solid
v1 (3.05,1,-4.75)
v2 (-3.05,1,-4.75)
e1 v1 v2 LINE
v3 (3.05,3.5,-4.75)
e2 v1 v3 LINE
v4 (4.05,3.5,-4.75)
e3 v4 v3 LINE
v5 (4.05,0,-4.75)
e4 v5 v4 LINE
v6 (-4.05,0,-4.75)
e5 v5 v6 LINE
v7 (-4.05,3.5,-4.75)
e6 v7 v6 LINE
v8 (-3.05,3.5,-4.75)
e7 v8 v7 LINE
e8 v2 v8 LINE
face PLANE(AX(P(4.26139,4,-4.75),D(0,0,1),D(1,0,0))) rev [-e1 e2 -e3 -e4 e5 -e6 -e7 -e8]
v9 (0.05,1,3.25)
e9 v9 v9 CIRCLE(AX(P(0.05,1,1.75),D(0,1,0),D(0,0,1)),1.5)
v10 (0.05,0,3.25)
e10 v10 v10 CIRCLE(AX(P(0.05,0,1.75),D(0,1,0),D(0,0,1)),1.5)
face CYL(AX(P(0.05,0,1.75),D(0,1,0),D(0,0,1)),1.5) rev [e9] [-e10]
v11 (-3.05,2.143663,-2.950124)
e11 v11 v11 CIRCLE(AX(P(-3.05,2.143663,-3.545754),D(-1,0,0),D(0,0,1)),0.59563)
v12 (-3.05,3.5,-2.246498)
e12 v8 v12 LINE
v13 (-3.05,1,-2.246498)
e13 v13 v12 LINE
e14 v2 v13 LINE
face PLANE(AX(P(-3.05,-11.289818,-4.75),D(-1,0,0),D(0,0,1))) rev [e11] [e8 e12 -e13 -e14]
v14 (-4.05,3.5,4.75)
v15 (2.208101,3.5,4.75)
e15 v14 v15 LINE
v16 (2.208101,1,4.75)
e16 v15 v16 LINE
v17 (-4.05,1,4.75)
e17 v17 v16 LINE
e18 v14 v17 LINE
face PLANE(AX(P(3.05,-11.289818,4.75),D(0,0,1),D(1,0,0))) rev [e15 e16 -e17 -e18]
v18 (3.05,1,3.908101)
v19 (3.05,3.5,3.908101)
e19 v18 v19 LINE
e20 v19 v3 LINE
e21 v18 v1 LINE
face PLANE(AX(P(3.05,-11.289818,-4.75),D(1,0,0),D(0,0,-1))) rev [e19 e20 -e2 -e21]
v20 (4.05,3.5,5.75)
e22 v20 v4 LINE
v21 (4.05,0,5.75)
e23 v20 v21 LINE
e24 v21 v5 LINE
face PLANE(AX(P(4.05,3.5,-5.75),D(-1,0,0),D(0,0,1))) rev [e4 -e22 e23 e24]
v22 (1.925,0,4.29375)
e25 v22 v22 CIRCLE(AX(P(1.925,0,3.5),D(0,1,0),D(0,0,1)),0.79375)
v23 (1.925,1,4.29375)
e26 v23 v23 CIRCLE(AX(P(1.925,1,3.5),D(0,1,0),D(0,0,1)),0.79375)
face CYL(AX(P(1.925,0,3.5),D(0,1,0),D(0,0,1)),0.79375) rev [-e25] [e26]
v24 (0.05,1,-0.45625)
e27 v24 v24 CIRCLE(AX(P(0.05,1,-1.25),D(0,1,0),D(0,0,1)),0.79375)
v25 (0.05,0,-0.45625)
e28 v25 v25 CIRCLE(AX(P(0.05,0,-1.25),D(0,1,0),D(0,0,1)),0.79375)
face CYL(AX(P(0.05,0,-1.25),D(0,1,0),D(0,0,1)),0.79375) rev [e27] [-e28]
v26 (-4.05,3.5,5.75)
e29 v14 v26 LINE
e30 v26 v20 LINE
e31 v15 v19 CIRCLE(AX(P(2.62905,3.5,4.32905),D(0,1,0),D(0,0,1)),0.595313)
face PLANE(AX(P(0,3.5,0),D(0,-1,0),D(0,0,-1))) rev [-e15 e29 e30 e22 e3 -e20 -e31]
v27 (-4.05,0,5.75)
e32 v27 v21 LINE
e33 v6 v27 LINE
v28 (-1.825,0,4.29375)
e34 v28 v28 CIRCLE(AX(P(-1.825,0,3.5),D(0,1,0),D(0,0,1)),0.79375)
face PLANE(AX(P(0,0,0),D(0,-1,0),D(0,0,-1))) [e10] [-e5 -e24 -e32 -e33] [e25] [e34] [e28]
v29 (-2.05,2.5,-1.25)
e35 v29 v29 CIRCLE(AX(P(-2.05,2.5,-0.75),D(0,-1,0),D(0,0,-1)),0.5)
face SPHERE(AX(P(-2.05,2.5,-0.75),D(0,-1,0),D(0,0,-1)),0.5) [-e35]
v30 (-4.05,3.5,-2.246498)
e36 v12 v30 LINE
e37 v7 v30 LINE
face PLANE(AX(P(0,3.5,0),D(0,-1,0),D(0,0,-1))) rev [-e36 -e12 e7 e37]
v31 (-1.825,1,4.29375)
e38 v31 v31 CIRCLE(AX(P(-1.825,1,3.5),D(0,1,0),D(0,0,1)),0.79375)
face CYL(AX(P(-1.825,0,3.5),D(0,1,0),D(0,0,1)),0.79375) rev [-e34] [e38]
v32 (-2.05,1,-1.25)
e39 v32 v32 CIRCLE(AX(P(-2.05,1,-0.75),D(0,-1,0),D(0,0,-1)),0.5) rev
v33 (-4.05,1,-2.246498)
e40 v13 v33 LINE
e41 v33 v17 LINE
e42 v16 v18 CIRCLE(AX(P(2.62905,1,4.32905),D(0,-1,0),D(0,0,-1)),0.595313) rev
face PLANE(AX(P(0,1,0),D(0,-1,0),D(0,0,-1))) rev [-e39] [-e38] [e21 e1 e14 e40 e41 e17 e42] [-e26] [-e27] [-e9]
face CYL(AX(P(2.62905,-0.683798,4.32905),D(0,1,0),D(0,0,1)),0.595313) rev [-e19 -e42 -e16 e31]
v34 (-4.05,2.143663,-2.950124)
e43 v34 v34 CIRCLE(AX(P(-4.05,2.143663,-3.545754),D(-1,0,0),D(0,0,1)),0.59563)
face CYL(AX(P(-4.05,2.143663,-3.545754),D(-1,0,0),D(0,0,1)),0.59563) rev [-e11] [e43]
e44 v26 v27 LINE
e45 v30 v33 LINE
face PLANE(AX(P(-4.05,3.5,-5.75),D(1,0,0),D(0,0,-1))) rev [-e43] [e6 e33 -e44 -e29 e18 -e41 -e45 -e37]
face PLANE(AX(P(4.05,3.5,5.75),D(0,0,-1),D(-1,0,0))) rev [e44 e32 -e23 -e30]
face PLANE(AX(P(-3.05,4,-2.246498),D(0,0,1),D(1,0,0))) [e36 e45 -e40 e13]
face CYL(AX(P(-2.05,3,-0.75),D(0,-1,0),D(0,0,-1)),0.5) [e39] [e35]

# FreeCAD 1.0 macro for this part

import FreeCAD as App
import Part
import Sketcher

V = App.Vector


def edges_at(feature, points):
    """Names of the edges that pass closest to the given points."""
    edges = feature.Shape.Edges
    near = lambda p: min(range(len(edges)), key=lambda i: edges[i].distToShape(Part.Vertex(*p))[0])
    return sorted({f"Edge{near(p) + 1}" for p in points})

doc = App.newDocument("Part")
params = doc.addObject("Spreadsheet::Sheet", "Params")
for row, (alias, value) in enumerate([
    ("sketch1_width", "8.1 mm"),
    ("sketch1_height", "11.5 mm"),
    ("pad1_length", "3.5 mm"),
    ("sketch2_width", "6.1 mm"),
    ("sketch2_height", "9.5 mm"),
    ("pocket1_length", "2.5 mm"),
    ("sketch3_diameter", "3 mm"),
    ("pocket3_length", "2.5 mm"),
    ("sketch6_height", "1 mm"),
    ("pocket5_length", "4 mm"),
    ("sketch7_width", "1 mm"),
    ("pocket6_length", "3 mm"),
    ("sketch8_diameter", "1 mm"),
    ("pad2_length", "2 mm"),
    ("fillet_radius", "0.5 mm"),
    ("hole_diameter", "1.19126 mm"),
    ("hole_depth", "1 mm"),
], start=1):
    params.set(f"A{row}", alias)
    params.set(f"B{row}", "=" + value)
    params.setAlias(f"B{row}", alias)

body = doc.addObject("PartDesign::Body", "Body")

sketch1 = doc.addObject("Sketcher::SketchObject", "Sketch")
body.addObject(sketch1)
sketch1.AttachmentSupport = (doc.XZ_Plane, [""])
sketch1.MapMode = "FlatFace"
sketch1.addGeometry(Part.LineSegment(V(-4, -6, 0), V(-4, 6, 0)), False)
sketch1.addGeometry(Part.LineSegment(V(-4, 6, 0), V(4, 6, 0)), False)
sketch1.addGeometry(Part.LineSegment(V(4, 6, 0), V(4, -6, 0)), False)
sketch1.addGeometry(Part.LineSegment(V(4, -6, 0), V(-4, -6, 0)), False)
sketch1.addConstraint(Sketcher.Constraint("Coincident", 0, 2, 1, 1))
sketch1.addConstraint(Sketcher.Constraint("Coincident", 1, 2, 2, 1))
sketch1.addConstraint(Sketcher.Constraint("Coincident", 2, 2, 3, 1))
sketch1.addConstraint(Sketcher.Constraint("Coincident", 3, 2, 0, 1))
sketch1.addConstraint(Sketcher.Constraint("Vertical", 0))
sketch1.addConstraint(Sketcher.Constraint("Horizontal", 1))
sketch1.addConstraint(Sketcher.Constraint("Vertical", 2))
sketch1.addConstraint(Sketcher.Constraint("Horizontal", 3))
sketch1.addConstraint(Sketcher.Constraint("Symmetric", 0, 2, 2, 2, -1, 1))
sketch1.addConstraint(Sketcher.Constraint("DistanceX", 1, 1, 1, 2, 8.1))
sketch1.addConstraint(Sketcher.Constraint("DistanceY", 0, 1, 0, 2, 11.5))
sketch1.setExpression("Constraints[9]", "Params.sketch1_width")
sketch1.setExpression("Constraints[10]", "Params.sketch1_height")
pad1 = doc.addObject("PartDesign::Pad", "Pad")
body.addObject(pad1)
pad1.Profile = sketch1
pad1.setExpression("Length", "Params.pad1_length")
pad1.Reversed = True

sketch2 = doc.addObject("Sketcher::SketchObject", "Sketch001")
body.addObject(sketch2)
sketch2.AttachmentSupport = (doc.XZ_Plane, [""])
sketch2.MapMode = "FlatFace"
sketch2.AttachmentOffset = App.Placement(V(0, 0, -3.5), App.Rotation())
sketch2.addGeometry(Part.LineSegment(V(-3, -5, 0), V(-3, 5, 0)), False)
sketch2.addGeometry(Part.LineSegment(V(-3, 5, 0), V(3, 5, 0)), False)
sketch2.addGeometry(Part.LineSegment(V(3, 5, 0), V(3, -5, 0)), False)
sketch2.addGeometry(Part.LineSegment(V(3, -5, 0), V(-3, -5, 0)), False)
sketch2.addConstraint(Sketcher.Constraint("Coincident", 0, 2, 1, 1))
sketch2.addConstraint(Sketcher.Constraint("Coincident", 1, 2, 2, 1))
sketch2.addConstraint(Sketcher.Constraint("Coincident", 2, 2, 3, 1))
sketch2.addConstraint(Sketcher.Constraint("Coincident", 3, 2, 0, 1))
sketch2.addConstraint(Sketcher.Constraint("Vertical", 0))
sketch2.addConstraint(Sketcher.Constraint("Horizontal", 1))
sketch2.addConstraint(Sketcher.Constraint("Vertical", 2))
sketch2.addConstraint(Sketcher.Constraint("Horizontal", 3))
sketch2.addConstraint(Sketcher.Constraint("Symmetric", 0, 2, 2, 2, -1, 1))
sketch2.addConstraint(Sketcher.Constraint("DistanceX", 1, 1, 1, 2, 6.1))
sketch2.addConstraint(Sketcher.Constraint("DistanceY", 0, 1, 0, 2, 9.5))
sketch2.setExpression("Constraints[9]", "Params.sketch2_width")
sketch2.setExpression("Constraints[10]", "Params.sketch2_height")
pocket1 = doc.addObject("PartDesign::Pocket", "Pocket")
body.addObject(pocket1)
pocket1.Profile = sketch2
pocket1.setExpression("Length", "Params.pocket1_length")
pocket1.Reversed = True

sketch3 = doc.addObject("Sketcher::SketchObject", "Sketch002")
body.addObject(sketch3)
sketch3.AttachmentSupport = (doc.XZ_Plane, [""])
sketch3.MapMode = "FlatFace"
sketch3.AttachmentOffset = App.Placement(V(0, 0, -1), App.Rotation())
sketch3.addGeometry(Part.Circle(V(0.1, 1.8, 0), V(0, 0, 1), 1.5), False)
sketch3.addConstraint(Sketcher.Constraint("Diameter", 0, 3.0))
sketch3.addConstraint(Sketcher.Constraint("DistanceX", -1, 1, 0, 3, 0.05))
sketch3.addConstraint(Sketcher.Constraint("DistanceY", -1, 1, 0, 3, 1.75))
sketch3.setExpression("Constraints[0]", "Params.sketch3_diameter")
pocket2 = doc.addObject("PartDesign::Pocket", "Pocket001")
body.addObject(pocket2)
pocket2.Profile = sketch3
pocket2.Type = "ThroughAll"
pocket2.Reversed = True

sketch4 = doc.addObject("Sketcher::SketchObject", "Sketch003")
body.addObject(sketch4)
sketch4.AttachmentSupport = (doc.XZ_Plane, [""])
sketch4.MapMode = "FlatFace"
sketch4.AttachmentOffset = App.Placement(V(0, 0, -3.5), App.Rotation())
sketch4.addGeometry(Part.Circle(V(2.6, 4.3, 0), V(0, 0, 1), 0.6), False)
sketch4.addConstraint(Sketcher.Constraint("Diameter", 0, 1.190625))
sketch4.addConstraint(Sketcher.Constraint("DistanceX", -1, 1, 0, 3, 2.62905))
sketch4.addConstraint(Sketcher.Constraint("DistanceY", -1, 1, 0, 3, 4.32905))
pocket3 = doc.addObject("PartDesign::Pocket", "Pocket002")
body.addObject(pocket3)
pocket3.Profile = sketch4
pocket3.setExpression("Length", "Params.pocket3_length")
pocket3.Reversed = True

sketch5 = doc.addObject("Sketcher::SketchObject", "Sketch004")
body.addObject(sketch5)
sketch5.AttachmentSupport = (doc.XZ_Plane, [""])
sketch5.MapMode = "FlatFace"
sketch5.AttachmentOffset = App.Placement(V(0, 0, -1), App.Rotation())
sketch5.addGeometry(Part.Circle(V(0.1, -1.2, 0), V(0, 0, 1), 0.8), False)
sketch5.addGeometry(Part.Circle(V(-1.8, 3.5, 0), V(0, 0, 1), 0.8), False)
sketch5.addGeometry(Part.Circle(V(1.9, 3.5, 0), V(0, 0, 1), 0.8), False)
sketch5.addConstraint(Sketcher.Constraint("Equal", 0, 1))
sketch5.addConstraint(Sketcher.Constraint("Equal", 1, 2))
sketch5.addConstraint(Sketcher.Constraint("Horizontal", 1, 3, 2, 3))
sketch5.addConstraint(Sketcher.Constraint("Diameter", 0, 1.5875))
sketch5.addConstraint(Sketcher.Constraint("DistanceY", -1, 1, 1, 3, 3.5))
sketch5.addConstraint(Sketcher.Constraint("DistanceX", -1, 1, 0, 3, 0.05))
sketch5.addConstraint(Sketcher.Constraint("DistanceY", 0, 3, -1, 1, 1.25))
sketch5.addConstraint(Sketcher.Constraint("DistanceX", 1, 3, 2, 3, 3.75))
sketch5.addConstraint(Sketcher.Constraint("DistanceX", 1, 3, -1, 1, 1.825))
pocket4 = doc.addObject("PartDesign::Pocket", "Pocket003")
body.addObject(pocket4)
pocket4.Profile = sketch5
pocket4.Type = "ThroughAll"
pocket4.Reversed = True

sketch6 = doc.addObject("Sketcher::SketchObject", "Sketch005")
body.addObject(sketch6)
sketch6.AttachmentSupport = (doc.XZ_Plane, [""])
sketch6.MapMode = "FlatFace"
sketch6.addGeometry(Part.LineSegment(V(-4.7, -4.8, 0), V(-4.7, -5.8, 0)), False)
sketch6.addGeometry(Part.LineSegment(V(-4.7, -5.8, 0), V(4.3, -5.8, 0)), False)
sketch6.addGeometry(Part.LineSegment(V(4.3, -5.8, 0), V(4.3, -4.8, 0)), False)
sketch6.addGeometry(Part.LineSegment(V(4.3, -4.8, 0), V(-4.7, -4.8, 0)), False)
sketch6.addConstraint(Sketcher.Constraint("Coincident", 0, 2, 1, 1))
sketch6.addConstraint(Sketcher.Constraint("Coincident", 1, 2, 2, 1))
sketch6.addConstraint(Sketcher.Constraint("Coincident", 2, 2, 3, 1))
sketch6.addConstraint(Sketcher.Constraint("Coincident", 3, 2, 0, 1))
sketch6.addConstraint(Sketcher.Constraint("Vertical", 0))
sketch6.addConstraint(Sketcher.Constraint("Horizontal", 1))
sketch6.addConstraint(Sketcher.Constraint("Vertical", 2))
sketch6.addConstraint(Sketcher.Constraint("Horizontal", 3))
sketch6.addConstraint(Sketcher.Constraint("DistanceY", 0, 2, 0, 1, 1.0))
sketch6.addConstraint(Sketcher.Constraint("DistanceY", 0, 2, -1, 1, 5.75))
sketch6.addConstraint(Sketcher.Constraint("DistanceX", 1, 1, 1, 2, 8.991857))
sketch6.addConstraint(Sketcher.Constraint("DistanceX", -1, 1, 1, 2, 4.26139))
sketch6.setExpression("Constraints[8]", "Params.sketch6_height")
pocket5 = doc.addObject("PartDesign::Pocket", "Pocket004")
body.addObject(pocket5)
pocket5.Profile = sketch6
pocket5.setExpression("Length", "Params.pocket5_length")

sketch7 = doc.addObject("Sketcher::SketchObject", "Sketch006")
body.addObject(sketch7)
sketch7.AttachmentSupport = (doc.XZ_Plane, [""])
sketch7.MapMode = "FlatFace"
sketch7.AttachmentOffset = App.Placement(V(0, 0, -1), App.Rotation())
sketch7.addGeometry(Part.LineSegment(V(-4, -2.2, 0), V(-4, 4.7, 0)), False)
sketch7.addGeometry(Part.LineSegment(V(-4, 4.7, 0), V(-3, 4.7, 0)), False)
sketch7.addGeometry(Part.LineSegment(V(-3, 4.7, 0), V(-3, -2.2, 0)), False)
sketch7.addGeometry(Part.LineSegment(V(-3, -2.2, 0), V(-4, -2.2, 0)), False)
sketch7.addConstraint(Sketcher.Constraint("Coincident", 0, 2, 1, 1))
sketch7.addConstraint(Sketcher.Constraint("Coincident", 1, 2, 2, 1))
sketch7.addConstraint(Sketcher.Constraint("Coincident", 2, 2, 3, 1))
sketch7.addConstraint(Sketcher.Constraint("Coincident", 3, 2, 0, 1))
sketch7.addConstraint(Sketcher.Constraint("Vertical", 0))
sketch7.addConstraint(Sketcher.Constraint("Horizontal", 1))
sketch7.addConstraint(Sketcher.Constraint("Vertical", 2))
sketch7.addConstraint(Sketcher.Constraint("Horizontal", 3))
sketch7.addConstraint(Sketcher.Constraint("DistanceX", 1, 1, 1, 2, 1.0))
sketch7.addConstraint(Sketcher.Constraint("DistanceX", 0, 2, -1, 1, 4.05))
sketch7.addConstraint(Sketcher.Constraint("DistanceY", -1, 1, 0, 2, 4.75))
sketch7.addConstraint(Sketcher.Constraint("DistanceY", 0, 1, 0, 2, 6.996498))
sketch7.setExpression("Constraints[8]", "Params.sketch7_width")
pocket6 = doc.addObject("PartDesign::Pocket", "Pocket005")
body.addObject(pocket6)
pocket6.Profile = sketch7
pocket6.setExpression("Length", "Params.pocket6_length")

sketch8 = doc.addObject("Sketcher::SketchObject", "Sketch007")
body.addObject(sketch8)
sketch8.AttachmentSupport = (doc.XZ_Plane, [""])
sketch8.MapMode = "FlatFace"
sketch8.AttachmentOffset = App.Placement(V(0, 0, -1), App.Rotation())
sketch8.addGeometry(Part.Circle(V(-2, -0.8, 0), V(0, 0, 1), 0.5), False)
sketch8.addConstraint(Sketcher.Constraint("Diameter", 0, 1.0))
sketch8.addConstraint(Sketcher.Constraint("DistanceX", 0, 3, -1, 1, 2.05))
sketch8.addConstraint(Sketcher.Constraint("DistanceY", 0, 3, -1, 1, 0.75))
sketch8.setExpression("Constraints[0]", "Params.sketch8_diameter")
pad2 = doc.addObject("PartDesign::Pad", "Pad001")
body.addObject(pad2)
pad2.Profile = sketch8
pad2.setExpression("Length", "Params.pad2_length")
pad2.Reversed = True
doc.recompute()

fillet = doc.addObject("PartDesign::Fillet", "Fillet")
body.addObject(fillet)
fillet.Base = (pad2, edges_at(pad2, [(-2.55, 3, -0.75)]))
fillet.setExpression("Radius", "Params.fillet_radius")

sketch9 = doc.addObject("Sketcher::SketchObject", "Sketch008")
body.addObject(sketch9)
sketch9.AttachmentSupport = (doc.YZ_Plane, [""])
sketch9.MapMode = "FlatFace"
sketch9.AttachmentOffset = App.Placement(V(0, 0, -4.05), App.Rotation())
sketch9.addGeometry(Part.Circle(V(2.1, -3.5, 0), V(0, 0, 1), 0.6), False)
sketch9.addConstraint(Sketcher.Constraint("Diameter", 0, 1.19126))
sketch9.addConstraint(Sketcher.Constraint("DistanceX", -1, 1, 0, 3, 2.143663))
sketch9.addConstraint(Sketcher.Constraint("DistanceY", 0, 3, -1, 1, 3.545754))
doc.recompute()
hole = doc.addObject("PartDesign::Hole", "Hole")
body.addObject(hole)
hole.Profile = sketch9
hole.ThreadType = "None"
hole.setExpression("Diameter", "Params.hole_diameter")
hole.DepthType = "Dimension"
hole.setExpression("Depth", "Params.hole_depth")
hole.DrillPoint = "Angled"
hole.DrillPointAngle = 118
hole.Reversed = True

doc.recompute()
